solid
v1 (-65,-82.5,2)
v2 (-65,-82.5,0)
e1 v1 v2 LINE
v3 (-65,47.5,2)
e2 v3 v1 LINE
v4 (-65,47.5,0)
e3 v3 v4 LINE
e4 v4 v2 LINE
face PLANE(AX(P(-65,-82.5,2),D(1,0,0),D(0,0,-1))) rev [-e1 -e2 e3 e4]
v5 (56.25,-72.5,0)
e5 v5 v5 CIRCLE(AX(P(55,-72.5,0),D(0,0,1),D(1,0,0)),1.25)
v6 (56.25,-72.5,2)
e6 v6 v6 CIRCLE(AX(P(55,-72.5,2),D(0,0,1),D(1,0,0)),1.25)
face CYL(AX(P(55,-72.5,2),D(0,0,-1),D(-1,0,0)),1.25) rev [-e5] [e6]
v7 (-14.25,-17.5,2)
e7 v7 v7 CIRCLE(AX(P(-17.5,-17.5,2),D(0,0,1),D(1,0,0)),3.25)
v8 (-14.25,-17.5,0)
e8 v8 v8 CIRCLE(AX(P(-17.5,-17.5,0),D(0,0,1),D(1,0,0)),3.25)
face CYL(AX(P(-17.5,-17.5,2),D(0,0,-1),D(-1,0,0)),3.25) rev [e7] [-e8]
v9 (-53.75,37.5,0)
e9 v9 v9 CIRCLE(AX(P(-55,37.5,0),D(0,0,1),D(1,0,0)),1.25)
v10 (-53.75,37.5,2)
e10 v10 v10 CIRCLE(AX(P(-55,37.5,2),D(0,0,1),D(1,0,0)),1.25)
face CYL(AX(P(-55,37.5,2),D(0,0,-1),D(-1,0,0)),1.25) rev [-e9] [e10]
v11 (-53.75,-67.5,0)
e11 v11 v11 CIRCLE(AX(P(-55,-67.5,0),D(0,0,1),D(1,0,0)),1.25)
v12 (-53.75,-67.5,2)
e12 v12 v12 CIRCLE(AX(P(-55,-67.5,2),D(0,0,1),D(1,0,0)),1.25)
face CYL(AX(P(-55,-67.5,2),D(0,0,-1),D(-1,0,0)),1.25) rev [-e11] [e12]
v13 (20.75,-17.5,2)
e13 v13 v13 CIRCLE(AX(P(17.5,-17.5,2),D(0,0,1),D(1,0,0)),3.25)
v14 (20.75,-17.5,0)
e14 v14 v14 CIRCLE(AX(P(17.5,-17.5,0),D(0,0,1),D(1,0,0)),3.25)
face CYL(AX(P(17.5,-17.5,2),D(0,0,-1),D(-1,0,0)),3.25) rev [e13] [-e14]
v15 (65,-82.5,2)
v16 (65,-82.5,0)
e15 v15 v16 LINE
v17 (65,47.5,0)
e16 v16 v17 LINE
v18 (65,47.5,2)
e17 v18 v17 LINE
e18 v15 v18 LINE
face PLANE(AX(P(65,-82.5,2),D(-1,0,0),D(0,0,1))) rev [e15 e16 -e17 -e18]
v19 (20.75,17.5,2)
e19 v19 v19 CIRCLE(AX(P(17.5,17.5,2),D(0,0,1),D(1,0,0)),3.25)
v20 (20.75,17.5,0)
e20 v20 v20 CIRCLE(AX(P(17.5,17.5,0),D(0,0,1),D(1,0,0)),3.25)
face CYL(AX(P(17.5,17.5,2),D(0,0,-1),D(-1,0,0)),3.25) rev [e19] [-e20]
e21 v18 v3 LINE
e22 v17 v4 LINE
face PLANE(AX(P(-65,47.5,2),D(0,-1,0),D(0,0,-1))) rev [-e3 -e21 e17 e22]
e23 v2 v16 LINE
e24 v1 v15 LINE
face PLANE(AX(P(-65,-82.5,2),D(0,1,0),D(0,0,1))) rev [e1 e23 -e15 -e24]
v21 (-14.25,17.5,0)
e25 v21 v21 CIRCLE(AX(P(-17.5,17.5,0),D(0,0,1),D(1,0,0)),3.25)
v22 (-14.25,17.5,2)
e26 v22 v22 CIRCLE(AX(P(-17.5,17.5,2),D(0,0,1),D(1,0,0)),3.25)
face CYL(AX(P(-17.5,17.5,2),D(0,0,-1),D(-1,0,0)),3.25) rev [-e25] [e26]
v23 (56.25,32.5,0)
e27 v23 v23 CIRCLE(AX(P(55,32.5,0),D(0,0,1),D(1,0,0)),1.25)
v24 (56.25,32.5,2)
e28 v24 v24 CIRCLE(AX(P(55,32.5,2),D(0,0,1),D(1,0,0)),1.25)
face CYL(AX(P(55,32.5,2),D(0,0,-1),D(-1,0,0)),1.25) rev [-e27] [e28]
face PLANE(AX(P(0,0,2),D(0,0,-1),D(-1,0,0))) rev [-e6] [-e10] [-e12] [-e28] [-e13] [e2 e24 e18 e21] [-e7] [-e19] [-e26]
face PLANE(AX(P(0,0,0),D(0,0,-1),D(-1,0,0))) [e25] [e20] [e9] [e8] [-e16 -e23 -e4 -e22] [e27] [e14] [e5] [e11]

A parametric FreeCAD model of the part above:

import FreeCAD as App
import Part
import Sketcher
from FreeCAD import Vector
Q = App.Units.Quantity


def add_polygon(sketch, points):
    """Adds a closed chain of lines whose ends are joined by coincident constraints."""
    first, n = sketch.GeometryCount, len(points)
    for a, b in zip(points, points[1:] + points[:1]):
        sketch.addGeometry(Part.LineSegment(App.Vector(*a, 0), App.Vector(*b, 0)), False)
    for i in range(n):
        sketch.addConstraint(Sketcher.Constraint("Coincident", first + i, 2, first + (i + 1) % n, 1))

doc = App.newDocument("Part")
body = doc.addObject("PartDesign::Body", "Body")

# Sketch on XY plane
sketch1 = body.newObject("Sketcher::SketchObject", "Sketch")
sketch1.AttachmentSupport = (doc.getObject("XY_Plane"), [""])
sketch1.MapMode = "FlatFace"
add_polygon(sketch1, [(-65, 47.5), (-65, -82.5), (65, -82.5), (65, 47.5)])  # lines 0-3
sketch1.addGeometry(Part.Circle(Vector(-55, -67.5, 0), Vector(0, 0, 1), 1.2), False)  # 4
sketch1.addGeometry(Part.Circle(Vector(55, -72.5, 0), Vector(0, 0, 1), 1.2), False)  # 5
sketch1.addGeometry(Part.Circle(Vector(-17.5, -17.5, 0), Vector(0, 0, 1), 3.2), False)  # 6
sketch1.addGeometry(Part.Circle(Vector(-55, 37.5, 0), Vector(0, 0, 1), 1.2), False)  # 7
sketch1.addGeometry(Part.Circle(Vector(-17.5, 17.5, 0), Vector(0, 0, 1), 3.2), False)  # 8
sketch1.addGeometry(Part.Circle(Vector(17.5, -17.5, 0), Vector(0, 0, 1), 3.2), False)  # 9
sketch1.addGeometry(Part.Circle(Vector(17.5, 17.5, 0), Vector(0, 0, 1), 3.2), False)  # 10
sketch1.addGeometry(Part.Circle(Vector(55, 32.5, 0), Vector(0, 0, 1), 1.2), False)  # 11
sketch1.addConstraint(Sketcher.Constraint("Vertical", 0))
sketch1.addConstraint(Sketcher.Constraint("Horizontal", 1))
sketch1.addConstraint(Sketcher.Constraint("Vertical", 2))
sketch1.addConstraint(Sketcher.Constraint("Horizontal", 3))
sketch1.addConstraint(Sketcher.Constraint("Equal", 4, 5))
sketch1.addConstraint(Sketcher.Constraint("Equal", 5, 7))
sketch1.addConstraint(Sketcher.Constraint("Equal", 6, 8))
sketch1.addConstraint(Sketcher.Constraint("Equal", 8, 9))
sketch1.addConstraint(Sketcher.Constraint("Equal", 9, 10))
sketch1.addConstraint(Sketcher.Constraint("Equal", 7, 11))
sketch1.addConstraint(Sketcher.Constraint("Symmetric", 8, 3, 9, 3, -1, 1))
sketch1.addConstraint(Sketcher.Constraint("Symmetric", 6, 3, 10, 3, -1, 1))
sketch1.addConstraint(Sketcher.Constraint("Symmetric", 6, 3, 9, 3, -2))
sketch1.addConstraint(Sketcher.Constraint("Vertical", 4, 3, 7, 3))
sketch1.addConstraint(Sketcher.Constraint("Vertical", 5, 3, 11, 3))
sketch1.addConstraint(Sketcher.Constraint("Equal", 3, 0))
sketch1.addConstraint(Sketcher.Constraint("Diameter", 4, Q("2.5 mm")))
sketch1.addConstraint(Sketcher.Constraint("Diameter", 6, Q("6.5 mm")))
sketch1.addConstraint(Sketcher.Constraint("DistanceX", 1, 1, 1, 2, Q("130 mm")))
sketch1.addConstraint(Sketcher.Constraint("DistanceX", 4, 3, -1, 1, Q("55 mm")))
sketch1.addConstraint(Sketcher.Constraint("DistanceX", -1, 1, 5, 3, Q("55 mm")))
sketch1.addConstraint(Sketcher.Constraint("DistanceX", 0, 2, -1, 1, Q("65 mm")))
sketch1.addConstraint(Sketcher.Constraint("DistanceY", 5, 3, 4, 3, Q("5 mm")))
sketch1.addConstraint(Sketcher.Constraint("DistanceY", 4, 3, 6, 3, Q("50 mm")))
sketch1.addConstraint(Sketcher.Constraint("DistanceY", 6, 3, 7, 3, Q("55 mm")))
sketch1.addConstraint(Sketcher.Constraint("DistanceY", 6, 3, 8, 3, Q("35 mm")))
sketch1.addConstraint(Sketcher.Constraint("DistanceX", 6, 3, 9, 3, Q("35 mm")))
sketch1.addConstraint(Sketcher.Constraint("DistanceY", 10, 3, 11, 3, Q("15 mm")))
sketch1.addConstraint(Sketcher.Constraint("DistanceY", 0, 2, 4, 3, Q("15 mm")))
pad1 = body.newObject("PartDesign::Pad", "Pad")
pad1.Profile = sketch1
pad1.Length = 2

doc.recompute()
